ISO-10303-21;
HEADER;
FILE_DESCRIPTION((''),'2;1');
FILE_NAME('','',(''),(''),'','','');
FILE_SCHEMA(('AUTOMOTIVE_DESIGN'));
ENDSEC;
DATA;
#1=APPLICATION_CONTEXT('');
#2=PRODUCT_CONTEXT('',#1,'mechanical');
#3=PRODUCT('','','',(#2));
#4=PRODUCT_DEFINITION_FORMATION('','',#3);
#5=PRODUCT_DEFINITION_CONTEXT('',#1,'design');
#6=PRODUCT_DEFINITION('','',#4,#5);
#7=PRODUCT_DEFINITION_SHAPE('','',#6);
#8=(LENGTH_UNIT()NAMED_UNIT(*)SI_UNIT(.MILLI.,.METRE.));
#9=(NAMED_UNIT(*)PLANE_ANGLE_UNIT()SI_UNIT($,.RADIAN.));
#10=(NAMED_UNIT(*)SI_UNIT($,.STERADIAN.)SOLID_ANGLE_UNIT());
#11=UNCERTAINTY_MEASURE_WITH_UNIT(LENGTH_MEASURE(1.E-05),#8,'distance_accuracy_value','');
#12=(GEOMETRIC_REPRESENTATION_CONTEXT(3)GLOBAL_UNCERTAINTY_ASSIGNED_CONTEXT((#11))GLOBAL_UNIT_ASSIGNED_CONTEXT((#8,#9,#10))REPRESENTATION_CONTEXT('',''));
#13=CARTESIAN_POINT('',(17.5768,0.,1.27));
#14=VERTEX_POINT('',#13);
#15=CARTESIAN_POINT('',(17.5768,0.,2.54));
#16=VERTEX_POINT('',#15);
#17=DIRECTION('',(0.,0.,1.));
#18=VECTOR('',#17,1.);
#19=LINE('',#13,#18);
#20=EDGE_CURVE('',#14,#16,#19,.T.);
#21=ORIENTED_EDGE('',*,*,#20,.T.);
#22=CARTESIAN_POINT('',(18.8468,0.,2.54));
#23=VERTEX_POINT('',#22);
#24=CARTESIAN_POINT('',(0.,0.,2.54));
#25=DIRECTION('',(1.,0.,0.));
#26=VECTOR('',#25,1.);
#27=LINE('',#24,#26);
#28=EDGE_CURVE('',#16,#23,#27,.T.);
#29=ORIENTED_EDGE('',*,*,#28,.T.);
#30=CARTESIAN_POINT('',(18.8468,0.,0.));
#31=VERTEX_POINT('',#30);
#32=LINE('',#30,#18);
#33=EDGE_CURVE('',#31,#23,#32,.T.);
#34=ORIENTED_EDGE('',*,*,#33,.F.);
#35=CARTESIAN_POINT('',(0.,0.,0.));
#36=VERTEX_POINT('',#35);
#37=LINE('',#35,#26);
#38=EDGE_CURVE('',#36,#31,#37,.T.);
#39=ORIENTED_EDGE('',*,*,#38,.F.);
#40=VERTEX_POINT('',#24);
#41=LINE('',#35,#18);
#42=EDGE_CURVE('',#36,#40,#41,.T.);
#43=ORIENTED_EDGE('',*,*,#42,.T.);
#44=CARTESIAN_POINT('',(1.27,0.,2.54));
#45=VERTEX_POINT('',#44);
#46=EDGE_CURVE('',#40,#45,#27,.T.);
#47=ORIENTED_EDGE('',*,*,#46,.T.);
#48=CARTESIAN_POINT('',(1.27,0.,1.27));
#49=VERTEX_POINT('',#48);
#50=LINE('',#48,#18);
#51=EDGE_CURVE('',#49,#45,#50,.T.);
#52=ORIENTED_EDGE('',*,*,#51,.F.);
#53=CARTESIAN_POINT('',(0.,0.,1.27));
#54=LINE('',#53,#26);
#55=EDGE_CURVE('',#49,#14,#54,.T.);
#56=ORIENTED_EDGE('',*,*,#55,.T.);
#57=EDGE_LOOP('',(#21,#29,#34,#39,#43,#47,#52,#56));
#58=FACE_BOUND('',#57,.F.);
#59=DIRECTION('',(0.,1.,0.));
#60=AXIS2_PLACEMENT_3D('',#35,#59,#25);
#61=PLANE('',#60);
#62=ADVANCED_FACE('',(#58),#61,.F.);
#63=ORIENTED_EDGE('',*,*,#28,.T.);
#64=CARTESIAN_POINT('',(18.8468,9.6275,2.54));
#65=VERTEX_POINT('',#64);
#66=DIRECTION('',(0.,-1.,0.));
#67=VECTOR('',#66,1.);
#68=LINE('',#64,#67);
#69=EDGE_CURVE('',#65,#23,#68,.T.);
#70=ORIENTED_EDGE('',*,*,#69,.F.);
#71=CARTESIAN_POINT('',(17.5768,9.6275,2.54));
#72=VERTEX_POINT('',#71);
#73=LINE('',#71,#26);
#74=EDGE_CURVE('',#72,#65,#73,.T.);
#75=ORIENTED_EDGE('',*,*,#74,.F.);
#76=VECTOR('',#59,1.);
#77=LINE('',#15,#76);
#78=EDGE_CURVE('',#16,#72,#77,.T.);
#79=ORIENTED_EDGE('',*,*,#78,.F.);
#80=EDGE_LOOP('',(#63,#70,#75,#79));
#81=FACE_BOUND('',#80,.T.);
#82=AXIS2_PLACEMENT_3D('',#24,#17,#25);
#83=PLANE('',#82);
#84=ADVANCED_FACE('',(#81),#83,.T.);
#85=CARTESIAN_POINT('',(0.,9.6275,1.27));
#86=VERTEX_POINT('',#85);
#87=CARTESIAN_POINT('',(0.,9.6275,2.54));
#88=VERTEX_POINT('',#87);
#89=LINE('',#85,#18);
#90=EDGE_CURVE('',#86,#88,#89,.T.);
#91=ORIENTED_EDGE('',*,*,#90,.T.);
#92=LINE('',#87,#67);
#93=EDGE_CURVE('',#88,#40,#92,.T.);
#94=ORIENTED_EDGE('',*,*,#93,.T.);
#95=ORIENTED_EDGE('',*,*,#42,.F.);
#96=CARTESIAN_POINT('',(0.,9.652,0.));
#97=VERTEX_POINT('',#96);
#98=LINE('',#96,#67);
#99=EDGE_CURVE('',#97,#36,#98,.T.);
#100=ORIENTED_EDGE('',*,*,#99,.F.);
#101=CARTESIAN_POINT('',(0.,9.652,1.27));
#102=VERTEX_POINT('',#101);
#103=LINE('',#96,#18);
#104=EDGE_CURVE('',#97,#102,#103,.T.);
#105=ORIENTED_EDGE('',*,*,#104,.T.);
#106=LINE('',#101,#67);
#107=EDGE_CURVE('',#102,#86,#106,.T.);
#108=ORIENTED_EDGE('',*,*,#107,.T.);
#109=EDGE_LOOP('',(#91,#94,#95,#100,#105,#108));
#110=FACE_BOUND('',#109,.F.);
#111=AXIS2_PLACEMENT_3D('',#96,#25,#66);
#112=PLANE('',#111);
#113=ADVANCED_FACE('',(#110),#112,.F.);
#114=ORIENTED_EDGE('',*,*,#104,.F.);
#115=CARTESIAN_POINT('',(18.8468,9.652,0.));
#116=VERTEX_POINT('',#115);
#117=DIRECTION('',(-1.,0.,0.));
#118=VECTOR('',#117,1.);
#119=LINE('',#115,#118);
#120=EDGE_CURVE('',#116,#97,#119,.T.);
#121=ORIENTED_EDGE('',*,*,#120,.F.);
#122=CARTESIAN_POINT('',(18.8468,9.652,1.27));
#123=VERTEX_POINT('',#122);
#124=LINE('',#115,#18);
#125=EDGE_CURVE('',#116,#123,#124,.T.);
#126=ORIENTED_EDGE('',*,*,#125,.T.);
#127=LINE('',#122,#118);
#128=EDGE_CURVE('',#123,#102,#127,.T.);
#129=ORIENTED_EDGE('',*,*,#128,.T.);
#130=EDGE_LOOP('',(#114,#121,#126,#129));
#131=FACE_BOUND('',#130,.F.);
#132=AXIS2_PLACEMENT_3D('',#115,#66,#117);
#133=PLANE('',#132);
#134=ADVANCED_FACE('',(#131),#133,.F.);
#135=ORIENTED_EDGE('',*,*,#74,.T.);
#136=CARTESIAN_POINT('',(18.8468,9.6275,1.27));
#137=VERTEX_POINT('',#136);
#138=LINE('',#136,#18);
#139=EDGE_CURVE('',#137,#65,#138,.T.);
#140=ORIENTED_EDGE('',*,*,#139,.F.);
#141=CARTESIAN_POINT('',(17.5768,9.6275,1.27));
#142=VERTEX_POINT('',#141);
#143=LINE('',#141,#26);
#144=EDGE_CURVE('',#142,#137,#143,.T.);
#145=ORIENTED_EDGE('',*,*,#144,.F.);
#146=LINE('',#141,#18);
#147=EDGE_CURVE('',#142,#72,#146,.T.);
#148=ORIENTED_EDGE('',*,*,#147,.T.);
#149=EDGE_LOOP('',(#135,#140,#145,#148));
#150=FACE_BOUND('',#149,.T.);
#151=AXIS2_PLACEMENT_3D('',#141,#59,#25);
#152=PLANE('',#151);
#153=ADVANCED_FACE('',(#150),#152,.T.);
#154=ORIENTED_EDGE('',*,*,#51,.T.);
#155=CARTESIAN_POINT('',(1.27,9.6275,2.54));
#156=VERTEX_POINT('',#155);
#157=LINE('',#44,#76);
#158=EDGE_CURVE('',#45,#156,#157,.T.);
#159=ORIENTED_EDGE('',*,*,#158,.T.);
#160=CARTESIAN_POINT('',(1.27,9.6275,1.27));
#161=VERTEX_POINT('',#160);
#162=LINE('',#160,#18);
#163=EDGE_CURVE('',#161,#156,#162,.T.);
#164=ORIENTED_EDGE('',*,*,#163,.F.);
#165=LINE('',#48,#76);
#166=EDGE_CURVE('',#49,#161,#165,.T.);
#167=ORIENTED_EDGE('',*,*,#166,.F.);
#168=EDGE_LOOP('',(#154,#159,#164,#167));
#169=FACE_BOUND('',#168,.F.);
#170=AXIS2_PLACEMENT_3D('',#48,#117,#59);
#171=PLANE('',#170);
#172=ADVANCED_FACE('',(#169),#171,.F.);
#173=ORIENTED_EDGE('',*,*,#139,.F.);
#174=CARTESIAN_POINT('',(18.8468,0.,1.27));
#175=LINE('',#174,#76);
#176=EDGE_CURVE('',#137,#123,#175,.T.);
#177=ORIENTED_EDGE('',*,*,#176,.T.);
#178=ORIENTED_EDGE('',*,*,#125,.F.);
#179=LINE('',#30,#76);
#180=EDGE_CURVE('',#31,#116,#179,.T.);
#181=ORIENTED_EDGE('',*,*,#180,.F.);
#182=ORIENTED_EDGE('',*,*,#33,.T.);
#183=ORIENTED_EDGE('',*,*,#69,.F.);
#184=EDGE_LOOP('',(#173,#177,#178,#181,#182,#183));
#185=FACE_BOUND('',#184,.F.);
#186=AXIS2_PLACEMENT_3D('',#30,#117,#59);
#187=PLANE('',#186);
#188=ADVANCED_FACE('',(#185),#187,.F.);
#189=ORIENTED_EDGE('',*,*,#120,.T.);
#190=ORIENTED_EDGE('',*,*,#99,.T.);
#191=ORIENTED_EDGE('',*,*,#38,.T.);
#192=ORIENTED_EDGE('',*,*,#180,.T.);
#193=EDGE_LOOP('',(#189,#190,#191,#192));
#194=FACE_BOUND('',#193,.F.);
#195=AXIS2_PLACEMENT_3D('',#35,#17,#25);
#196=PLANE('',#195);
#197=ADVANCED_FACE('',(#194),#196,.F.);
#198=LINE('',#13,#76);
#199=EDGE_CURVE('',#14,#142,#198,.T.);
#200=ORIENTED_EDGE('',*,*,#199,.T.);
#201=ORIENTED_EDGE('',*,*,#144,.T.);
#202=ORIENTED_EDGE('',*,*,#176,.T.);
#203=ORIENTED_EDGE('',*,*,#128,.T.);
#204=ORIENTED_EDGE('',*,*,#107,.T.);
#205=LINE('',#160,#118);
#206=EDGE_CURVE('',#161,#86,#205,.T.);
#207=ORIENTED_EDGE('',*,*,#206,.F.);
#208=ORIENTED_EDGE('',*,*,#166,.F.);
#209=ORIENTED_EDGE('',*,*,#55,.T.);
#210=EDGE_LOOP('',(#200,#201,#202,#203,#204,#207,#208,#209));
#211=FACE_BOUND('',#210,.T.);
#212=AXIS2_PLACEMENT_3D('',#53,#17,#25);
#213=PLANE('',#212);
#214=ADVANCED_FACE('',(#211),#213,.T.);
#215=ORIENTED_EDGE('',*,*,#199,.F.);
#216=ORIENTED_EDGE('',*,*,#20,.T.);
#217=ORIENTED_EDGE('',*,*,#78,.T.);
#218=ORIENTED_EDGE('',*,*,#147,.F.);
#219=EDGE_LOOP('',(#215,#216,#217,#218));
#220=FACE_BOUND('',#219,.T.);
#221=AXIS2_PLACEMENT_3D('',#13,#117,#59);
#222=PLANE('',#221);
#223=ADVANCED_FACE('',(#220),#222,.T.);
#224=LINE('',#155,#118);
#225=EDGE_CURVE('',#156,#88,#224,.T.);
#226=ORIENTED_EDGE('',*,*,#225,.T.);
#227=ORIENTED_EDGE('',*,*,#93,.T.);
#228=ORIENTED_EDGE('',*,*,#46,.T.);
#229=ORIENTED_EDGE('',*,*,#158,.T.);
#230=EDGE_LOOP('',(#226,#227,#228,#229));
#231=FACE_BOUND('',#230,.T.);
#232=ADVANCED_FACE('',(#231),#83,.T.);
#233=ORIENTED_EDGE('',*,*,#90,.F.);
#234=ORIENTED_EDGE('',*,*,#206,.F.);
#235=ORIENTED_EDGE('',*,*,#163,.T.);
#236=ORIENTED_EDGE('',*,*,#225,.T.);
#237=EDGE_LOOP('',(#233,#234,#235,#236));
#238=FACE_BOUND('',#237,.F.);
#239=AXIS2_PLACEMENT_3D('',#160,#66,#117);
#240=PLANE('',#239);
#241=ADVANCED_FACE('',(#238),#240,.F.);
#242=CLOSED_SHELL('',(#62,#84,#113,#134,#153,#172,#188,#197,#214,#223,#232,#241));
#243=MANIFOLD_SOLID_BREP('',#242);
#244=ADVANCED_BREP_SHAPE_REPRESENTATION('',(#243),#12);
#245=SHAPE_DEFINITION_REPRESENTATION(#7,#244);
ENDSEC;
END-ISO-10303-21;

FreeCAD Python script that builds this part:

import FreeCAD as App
import Part
import Sketcher
from FreeCAD import Vector
Q = App.Units.Quantity


def add_polygon(sketch, points):
    """Adds a closed chain of lines whose ends are joined by coincident constraints."""
    first, n = sketch.GeometryCount, len(points)
    for a, b in zip(points, points[1:] + points[:1]):
        sketch.addGeometry(Part.LineSegment(App.Vector(*a, 0), App.Vector(*b, 0)), False)
    for i in range(n):
        sketch.addConstraint(Sketcher.Constraint("Coincident", first + i, 2, first + (i + 1) % n, 1))

doc = App.newDocument("Part")
body = doc.addObject("PartDesign::Body", "Body")

# Sketch on XY plane
sketch1 = body.newObject("Sketcher::SketchObject", "Sketch")
sketch1.AttachmentSupport = (doc.getObject("XY_Plane"), [""])
sketch1.MapMode = "FlatFace"
add_polygon(sketch1, [(0, 10), (0, 0), (19, 0), (19, 10)])  # lines 0-3
sketch1.addConstraint([
    Sketcher.Constraint("Vertical", 0),
    Sketcher.Constraint("Horizontal", 1),
    Sketcher.Constraint("Vertical", 2),
    Sketcher.Constraint("Horizontal", 3),
    Sketcher.Constraint("Coincident", 0, 2, -1, 1),
    Sketcher.Constraint("DistanceY", 0, 2, 0, 1, Q("0.38 in")),
    Sketcher.Constraint("DistanceX", 1, 1, 1, 2, Q("0.742 in")),
])
pad1 = body.newObject("PartDesign::Pad", "Pad")
pad1.Profile = sketch1
pad1.Length = Q("0.05 in")

# Sketch on XY plane
sketch2 = body.newObject("Sketcher::SketchObject", "Sketch001")
sketch2.AttachmentSupport = (doc.getObject("XY_Plane"), [""])
sketch2.MapMode = "FlatFace"
sketch2.AttachmentOffset = App.Placement(Vector(0, 0, 0.05 * 25.4), App.Rotation())
add_polygon(sketch2, [(0, 9.6), (0, 0), (1.3, 0), (1.3, 9.6)])  # lines 0-3
add_polygon(sketch2, [(17.6, 9.6), (17.6, 0), (18.8, 0), (18.8, 9.6)])  # lines 4-7
sketch2.addConstraint([
    Sketcher.Constraint("Vertical", 0),
    Sketcher.Constraint("Horizontal", 1),
    Sketcher.Constraint("Vertical", 2),
    Sketcher.Constraint("Horizontal", 3),
    Sketcher.Constraint("Vertical", 4),
    Sketcher.Constraint("Horizontal", 5),
    Sketcher.Constraint("Vertical", 6),
    Sketcher.Constraint("Horizontal", 7),
    Sketcher.Constraint("Coincident", 0, 2, -1, 1),
    Sketcher.Constraint("PointOnObject", 4, 2, -1),
    Sketcher.Constraint("Horizontal", 3, 2, 6, 2),
    Sketcher.Constraint("Equal", 3, 5),
    Sketcher.Constraint("DistanceX", 1, 1, 1, 2, Q("0.05 in")),
    Sketcher.Constraint("DistanceX", -1, 1, 4, 2, Q("0.692 in")),
    Sketcher.Constraint("DistanceY", 0, 2, 0, 1, Q("9.6275 mm")),
])
pad2 = body.newObject("PartDesign::Pad", "Pad001")
pad2.Profile = sketch2
pad2.Length = Q("0.05 in")

doc.recompute()
